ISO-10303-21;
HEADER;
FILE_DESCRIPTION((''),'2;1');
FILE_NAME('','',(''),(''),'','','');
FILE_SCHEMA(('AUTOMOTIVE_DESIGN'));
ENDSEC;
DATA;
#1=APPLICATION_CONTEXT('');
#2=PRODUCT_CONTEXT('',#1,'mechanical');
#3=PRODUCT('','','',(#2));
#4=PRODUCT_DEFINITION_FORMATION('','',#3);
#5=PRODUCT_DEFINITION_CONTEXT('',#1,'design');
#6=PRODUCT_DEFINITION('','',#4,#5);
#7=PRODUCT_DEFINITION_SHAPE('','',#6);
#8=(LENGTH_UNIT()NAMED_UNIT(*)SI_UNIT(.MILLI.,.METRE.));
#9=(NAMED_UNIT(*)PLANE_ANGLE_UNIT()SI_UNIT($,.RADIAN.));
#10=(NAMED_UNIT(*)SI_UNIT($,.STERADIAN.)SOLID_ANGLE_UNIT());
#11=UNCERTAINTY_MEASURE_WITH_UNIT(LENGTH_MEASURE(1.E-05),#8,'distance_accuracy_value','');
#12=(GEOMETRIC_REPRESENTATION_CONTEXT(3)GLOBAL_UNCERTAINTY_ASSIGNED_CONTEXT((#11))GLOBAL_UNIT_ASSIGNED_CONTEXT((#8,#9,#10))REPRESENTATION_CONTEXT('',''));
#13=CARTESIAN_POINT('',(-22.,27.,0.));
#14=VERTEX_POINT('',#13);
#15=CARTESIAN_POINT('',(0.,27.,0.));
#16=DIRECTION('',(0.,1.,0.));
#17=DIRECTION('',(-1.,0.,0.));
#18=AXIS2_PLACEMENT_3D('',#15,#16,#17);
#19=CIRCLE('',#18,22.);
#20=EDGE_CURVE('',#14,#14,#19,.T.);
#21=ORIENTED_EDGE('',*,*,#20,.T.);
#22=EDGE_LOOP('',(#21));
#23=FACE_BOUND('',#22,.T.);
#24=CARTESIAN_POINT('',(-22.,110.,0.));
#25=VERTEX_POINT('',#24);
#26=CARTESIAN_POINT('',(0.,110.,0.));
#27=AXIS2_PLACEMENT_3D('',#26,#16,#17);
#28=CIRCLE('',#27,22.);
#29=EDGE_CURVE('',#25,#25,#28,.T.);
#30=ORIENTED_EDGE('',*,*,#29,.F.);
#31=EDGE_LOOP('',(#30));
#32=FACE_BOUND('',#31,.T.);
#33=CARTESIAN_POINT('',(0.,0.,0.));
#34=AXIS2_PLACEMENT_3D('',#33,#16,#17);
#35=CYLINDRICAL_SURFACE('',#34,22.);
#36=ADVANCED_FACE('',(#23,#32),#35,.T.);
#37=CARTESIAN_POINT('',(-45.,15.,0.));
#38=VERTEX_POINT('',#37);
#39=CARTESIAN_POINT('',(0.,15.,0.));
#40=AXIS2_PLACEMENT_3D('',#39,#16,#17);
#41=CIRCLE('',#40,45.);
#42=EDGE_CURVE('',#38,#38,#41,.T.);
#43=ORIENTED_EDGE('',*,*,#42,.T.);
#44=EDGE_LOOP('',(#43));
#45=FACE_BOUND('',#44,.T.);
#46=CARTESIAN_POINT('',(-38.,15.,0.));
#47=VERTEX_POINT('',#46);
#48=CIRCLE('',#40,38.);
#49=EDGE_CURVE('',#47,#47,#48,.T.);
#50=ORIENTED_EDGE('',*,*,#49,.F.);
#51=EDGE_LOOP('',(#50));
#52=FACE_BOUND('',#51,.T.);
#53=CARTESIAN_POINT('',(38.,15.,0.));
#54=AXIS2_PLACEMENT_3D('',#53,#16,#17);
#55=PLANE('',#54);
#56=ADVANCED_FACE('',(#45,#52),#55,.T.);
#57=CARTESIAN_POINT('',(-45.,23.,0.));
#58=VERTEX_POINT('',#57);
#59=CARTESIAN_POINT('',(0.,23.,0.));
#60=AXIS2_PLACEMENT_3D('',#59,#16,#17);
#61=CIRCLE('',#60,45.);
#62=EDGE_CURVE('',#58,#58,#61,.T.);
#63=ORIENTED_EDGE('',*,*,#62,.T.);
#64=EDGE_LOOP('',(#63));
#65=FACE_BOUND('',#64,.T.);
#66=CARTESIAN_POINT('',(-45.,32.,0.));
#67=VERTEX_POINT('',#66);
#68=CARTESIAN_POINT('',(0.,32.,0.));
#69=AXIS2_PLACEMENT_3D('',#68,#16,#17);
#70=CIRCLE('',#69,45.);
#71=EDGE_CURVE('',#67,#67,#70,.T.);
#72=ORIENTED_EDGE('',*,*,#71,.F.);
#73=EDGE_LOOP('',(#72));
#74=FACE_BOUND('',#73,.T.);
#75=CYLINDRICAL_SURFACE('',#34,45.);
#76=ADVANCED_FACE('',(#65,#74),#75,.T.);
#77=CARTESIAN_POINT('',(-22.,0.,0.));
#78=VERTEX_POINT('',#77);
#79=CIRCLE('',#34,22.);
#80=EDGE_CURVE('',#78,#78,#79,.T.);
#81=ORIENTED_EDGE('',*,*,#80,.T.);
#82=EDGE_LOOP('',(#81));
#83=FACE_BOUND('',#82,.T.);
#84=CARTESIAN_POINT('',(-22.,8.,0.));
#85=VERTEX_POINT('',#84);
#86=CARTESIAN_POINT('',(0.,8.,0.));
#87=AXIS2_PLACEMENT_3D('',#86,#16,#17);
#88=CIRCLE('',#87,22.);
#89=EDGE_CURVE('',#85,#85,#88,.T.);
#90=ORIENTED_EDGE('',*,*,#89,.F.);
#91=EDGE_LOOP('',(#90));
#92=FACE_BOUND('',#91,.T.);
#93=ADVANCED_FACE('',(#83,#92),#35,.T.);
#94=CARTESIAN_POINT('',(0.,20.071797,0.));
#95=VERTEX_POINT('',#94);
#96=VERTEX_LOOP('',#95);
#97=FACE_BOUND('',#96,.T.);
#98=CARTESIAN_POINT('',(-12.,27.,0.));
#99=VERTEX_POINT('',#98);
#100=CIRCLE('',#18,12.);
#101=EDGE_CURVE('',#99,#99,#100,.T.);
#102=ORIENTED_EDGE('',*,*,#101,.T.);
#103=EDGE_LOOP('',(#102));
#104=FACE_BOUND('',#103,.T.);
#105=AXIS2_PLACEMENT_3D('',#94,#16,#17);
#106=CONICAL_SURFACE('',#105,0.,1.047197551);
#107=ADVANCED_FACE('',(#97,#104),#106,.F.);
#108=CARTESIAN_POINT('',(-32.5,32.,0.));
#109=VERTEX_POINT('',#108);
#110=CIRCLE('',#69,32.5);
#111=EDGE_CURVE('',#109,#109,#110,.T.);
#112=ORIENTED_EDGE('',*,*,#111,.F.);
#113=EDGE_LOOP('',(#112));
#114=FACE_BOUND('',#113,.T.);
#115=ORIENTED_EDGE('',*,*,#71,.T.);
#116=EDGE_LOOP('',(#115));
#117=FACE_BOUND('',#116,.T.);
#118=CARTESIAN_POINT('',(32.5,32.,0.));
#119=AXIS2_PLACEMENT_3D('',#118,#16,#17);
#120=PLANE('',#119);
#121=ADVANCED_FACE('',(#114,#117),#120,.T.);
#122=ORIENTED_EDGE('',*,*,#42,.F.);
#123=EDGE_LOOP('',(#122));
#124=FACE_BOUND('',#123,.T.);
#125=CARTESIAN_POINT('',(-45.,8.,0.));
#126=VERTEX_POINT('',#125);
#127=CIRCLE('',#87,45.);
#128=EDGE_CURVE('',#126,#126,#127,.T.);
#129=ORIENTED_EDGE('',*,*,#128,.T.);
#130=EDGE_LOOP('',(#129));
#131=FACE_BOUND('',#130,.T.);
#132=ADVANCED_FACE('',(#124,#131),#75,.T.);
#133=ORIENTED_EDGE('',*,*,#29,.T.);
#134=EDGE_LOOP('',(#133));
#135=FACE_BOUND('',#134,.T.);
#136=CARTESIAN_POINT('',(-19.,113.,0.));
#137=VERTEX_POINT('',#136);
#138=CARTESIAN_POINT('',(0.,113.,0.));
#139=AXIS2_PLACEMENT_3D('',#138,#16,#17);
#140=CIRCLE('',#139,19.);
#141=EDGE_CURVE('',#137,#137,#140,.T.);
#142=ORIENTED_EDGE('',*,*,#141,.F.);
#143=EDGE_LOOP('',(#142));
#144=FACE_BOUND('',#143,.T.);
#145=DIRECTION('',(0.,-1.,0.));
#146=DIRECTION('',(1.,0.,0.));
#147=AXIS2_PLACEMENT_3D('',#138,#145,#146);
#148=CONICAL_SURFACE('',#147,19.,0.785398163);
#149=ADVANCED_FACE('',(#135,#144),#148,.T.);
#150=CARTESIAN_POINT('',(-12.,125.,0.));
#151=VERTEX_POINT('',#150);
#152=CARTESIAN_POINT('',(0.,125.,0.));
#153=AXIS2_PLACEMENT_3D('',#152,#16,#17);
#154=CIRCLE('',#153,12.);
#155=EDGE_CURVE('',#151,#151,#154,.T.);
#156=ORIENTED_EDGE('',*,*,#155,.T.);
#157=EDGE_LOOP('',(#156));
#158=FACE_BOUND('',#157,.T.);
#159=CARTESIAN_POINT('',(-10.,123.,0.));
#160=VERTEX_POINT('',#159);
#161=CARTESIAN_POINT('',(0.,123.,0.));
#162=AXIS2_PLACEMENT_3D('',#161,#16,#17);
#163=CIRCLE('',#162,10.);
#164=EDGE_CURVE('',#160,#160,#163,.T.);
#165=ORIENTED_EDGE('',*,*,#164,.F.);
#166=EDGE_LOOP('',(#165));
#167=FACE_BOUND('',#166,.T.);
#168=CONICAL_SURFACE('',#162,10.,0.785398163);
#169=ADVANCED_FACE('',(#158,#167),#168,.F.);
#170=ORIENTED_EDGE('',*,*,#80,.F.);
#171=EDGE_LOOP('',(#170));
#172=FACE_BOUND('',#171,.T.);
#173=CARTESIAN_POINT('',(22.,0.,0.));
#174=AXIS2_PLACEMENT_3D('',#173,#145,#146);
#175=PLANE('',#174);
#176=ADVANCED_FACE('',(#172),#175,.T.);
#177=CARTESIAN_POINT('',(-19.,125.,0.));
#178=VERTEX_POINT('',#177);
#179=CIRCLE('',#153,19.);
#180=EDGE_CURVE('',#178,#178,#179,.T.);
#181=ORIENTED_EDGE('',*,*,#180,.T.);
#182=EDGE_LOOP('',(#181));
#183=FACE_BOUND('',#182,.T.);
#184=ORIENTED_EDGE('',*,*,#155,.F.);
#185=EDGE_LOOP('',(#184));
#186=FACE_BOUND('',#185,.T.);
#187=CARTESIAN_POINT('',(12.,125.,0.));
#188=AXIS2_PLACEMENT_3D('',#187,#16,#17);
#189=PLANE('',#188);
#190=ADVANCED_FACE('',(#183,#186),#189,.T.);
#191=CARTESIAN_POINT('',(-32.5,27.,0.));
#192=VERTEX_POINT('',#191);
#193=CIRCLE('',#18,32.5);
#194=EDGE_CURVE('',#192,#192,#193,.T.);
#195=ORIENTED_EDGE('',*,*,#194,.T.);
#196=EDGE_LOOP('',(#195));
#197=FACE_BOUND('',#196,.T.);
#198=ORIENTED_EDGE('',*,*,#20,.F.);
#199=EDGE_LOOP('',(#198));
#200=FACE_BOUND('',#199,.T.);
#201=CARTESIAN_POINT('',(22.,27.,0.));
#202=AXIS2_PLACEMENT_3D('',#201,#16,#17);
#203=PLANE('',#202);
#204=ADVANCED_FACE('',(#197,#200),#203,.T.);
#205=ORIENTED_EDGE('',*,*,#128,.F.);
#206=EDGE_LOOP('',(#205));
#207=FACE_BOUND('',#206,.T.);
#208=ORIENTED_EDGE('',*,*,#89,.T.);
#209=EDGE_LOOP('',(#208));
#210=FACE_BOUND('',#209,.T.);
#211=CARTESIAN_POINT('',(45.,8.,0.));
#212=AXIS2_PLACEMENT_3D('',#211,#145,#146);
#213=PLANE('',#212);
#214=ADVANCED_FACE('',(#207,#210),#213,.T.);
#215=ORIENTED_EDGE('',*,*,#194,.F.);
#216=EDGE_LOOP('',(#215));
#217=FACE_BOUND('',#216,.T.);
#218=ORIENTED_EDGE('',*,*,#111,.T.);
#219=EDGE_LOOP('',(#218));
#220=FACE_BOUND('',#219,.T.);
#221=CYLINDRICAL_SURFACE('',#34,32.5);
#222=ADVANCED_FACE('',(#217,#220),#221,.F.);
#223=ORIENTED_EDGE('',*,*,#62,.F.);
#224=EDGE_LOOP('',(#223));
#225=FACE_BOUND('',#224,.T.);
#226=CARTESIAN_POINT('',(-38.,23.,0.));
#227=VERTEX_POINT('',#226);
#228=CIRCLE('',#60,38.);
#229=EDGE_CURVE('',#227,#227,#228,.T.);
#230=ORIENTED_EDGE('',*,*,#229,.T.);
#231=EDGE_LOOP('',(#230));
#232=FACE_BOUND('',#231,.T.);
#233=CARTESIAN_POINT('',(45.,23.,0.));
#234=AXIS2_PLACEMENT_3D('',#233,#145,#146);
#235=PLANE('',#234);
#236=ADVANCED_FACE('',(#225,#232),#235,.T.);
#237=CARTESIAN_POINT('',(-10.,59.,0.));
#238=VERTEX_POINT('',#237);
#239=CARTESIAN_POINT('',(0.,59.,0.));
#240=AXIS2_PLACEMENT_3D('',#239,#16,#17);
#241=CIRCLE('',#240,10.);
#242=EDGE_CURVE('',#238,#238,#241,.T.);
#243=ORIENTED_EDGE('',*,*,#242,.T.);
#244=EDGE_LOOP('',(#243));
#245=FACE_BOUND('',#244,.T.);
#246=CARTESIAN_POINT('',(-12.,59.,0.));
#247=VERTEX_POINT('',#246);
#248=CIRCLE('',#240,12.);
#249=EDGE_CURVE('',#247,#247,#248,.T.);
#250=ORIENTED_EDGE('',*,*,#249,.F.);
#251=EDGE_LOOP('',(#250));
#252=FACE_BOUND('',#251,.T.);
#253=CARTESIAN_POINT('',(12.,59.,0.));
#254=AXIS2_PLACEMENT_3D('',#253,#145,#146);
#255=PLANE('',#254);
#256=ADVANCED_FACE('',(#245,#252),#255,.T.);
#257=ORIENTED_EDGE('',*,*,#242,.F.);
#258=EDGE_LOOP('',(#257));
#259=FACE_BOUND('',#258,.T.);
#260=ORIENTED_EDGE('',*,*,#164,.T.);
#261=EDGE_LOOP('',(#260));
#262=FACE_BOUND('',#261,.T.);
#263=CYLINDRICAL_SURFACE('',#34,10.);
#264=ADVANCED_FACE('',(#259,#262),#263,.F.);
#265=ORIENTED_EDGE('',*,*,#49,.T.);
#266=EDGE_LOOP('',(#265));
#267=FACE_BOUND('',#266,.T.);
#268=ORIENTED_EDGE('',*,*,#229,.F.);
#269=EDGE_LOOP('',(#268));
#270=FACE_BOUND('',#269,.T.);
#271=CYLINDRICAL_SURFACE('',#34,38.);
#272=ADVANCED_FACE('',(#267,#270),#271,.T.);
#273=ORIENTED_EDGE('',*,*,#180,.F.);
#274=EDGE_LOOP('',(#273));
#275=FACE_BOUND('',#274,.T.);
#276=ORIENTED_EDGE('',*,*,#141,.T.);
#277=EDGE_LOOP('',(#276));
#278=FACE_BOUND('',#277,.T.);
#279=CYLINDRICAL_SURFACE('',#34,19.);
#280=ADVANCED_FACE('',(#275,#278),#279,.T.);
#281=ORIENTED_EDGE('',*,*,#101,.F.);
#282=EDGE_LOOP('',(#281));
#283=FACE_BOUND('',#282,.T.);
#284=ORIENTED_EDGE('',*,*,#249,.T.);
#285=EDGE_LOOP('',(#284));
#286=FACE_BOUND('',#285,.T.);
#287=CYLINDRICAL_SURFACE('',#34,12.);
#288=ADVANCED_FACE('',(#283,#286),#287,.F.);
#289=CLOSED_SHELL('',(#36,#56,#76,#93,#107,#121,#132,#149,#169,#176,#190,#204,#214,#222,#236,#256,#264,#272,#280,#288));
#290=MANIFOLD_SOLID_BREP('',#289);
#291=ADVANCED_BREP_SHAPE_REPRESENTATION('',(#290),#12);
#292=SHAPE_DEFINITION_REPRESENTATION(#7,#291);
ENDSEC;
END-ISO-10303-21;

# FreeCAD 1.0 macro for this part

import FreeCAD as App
import Part
import Sketcher
from FreeCAD import Vector
Q = App.Units.Quantity

doc = App.newDocument("Part")
body = doc.addObject("PartDesign::Body", "Body")

# Sketch on XY plane
sketch1 = body.newObject("Sketcher::SketchObject", "Sketch")
sketch1.AttachmentSupport = (doc.getObject("XY_Plane"), [""])
sketch1.MapMode = "FlatFace"
sketch1.addGeometry([
    Part.LineSegment(Vector(22, 0, 0), Vector(0, 0, 0)),  # 0
    Part.LineSegment(Vector(0, 0, 0), Vector(0, 20.1, 0)),  # 1
    Part.LineSegment(Vector(0, 20.1, 0), Vector(12, 27, 0)),  # 2
    Part.LineSegment(Vector(12, 27, 0), Vector(12, 59, 0)),  # 3
    Part.LineSegment(Vector(12, 59, 0), Vector(10, 59, 0)),  # 4
    Part.LineSegment(Vector(10, 59, 0), Vector(10, 123, 0)),  # 5
    Part.LineSegment(Vector(10, 123, 0), Vector(12, 125, 0)),  # 6
    Part.LineSegment(Vector(12, 125, 0), Vector(19, 125, 0)),  # 7
    Part.LineSegment(Vector(19, 125, 0), Vector(19, 113, 0)),  # 8
    Part.LineSegment(Vector(19, 113, 0), Vector(22, 110, 0)),  # 9
    Part.LineSegment(Vector(22, 110, 0), Vector(22, 27, 0)),  # 10
    Part.LineSegment(Vector(22, 27, 0), Vector(32.5, 27, 0)),  # 11
    Part.LineSegment(Vector(32.5, 27, 0), Vector(32.5, 32, 0)),  # 12
    Part.LineSegment(Vector(32.5, 32, 0), Vector(45, 32, 0)),  # 13
    Part.LineSegment(Vector(45, 32, 0), Vector(45, 23, 0)),  # 14
    Part.LineSegment(Vector(45, 23, 0), Vector(38, 23, 0)),  # 15
    Part.LineSegment(Vector(38, 23, 0), Vector(38, 15, 0)),  # 16
    Part.LineSegment(Vector(38, 15, 0), Vector(45, 15, 0)),  # 17
    Part.LineSegment(Vector(45, 15, 0), Vector(45, 8, 0)),  # 18
    Part.LineSegment(Vector(45, 8, 0), Vector(22, 8, 0)),  # 19
    Part.LineSegment(Vector(22, 8, 0), Vector(22, 0, 0)),  # 20
], False)
sketch1.addConstraint([
    Sketcher.Constraint("Coincident", 0, 2, 1, 1),
    Sketcher.Constraint("Coincident", 1, 2, 2, 1),
    Sketcher.Constraint("Coincident", 2, 2, 3, 1),
    Sketcher.Constraint("Coincident", 3, 2, 4, 1),
    Sketcher.Constraint("Coincident", 4, 2, 5, 1),
    Sketcher.Constraint("Coincident", 5, 2, 6, 1),
    Sketcher.Constraint("Coincident", 6, 2, 7, 1),
    Sketcher.Constraint("Coincident", 7, 2, 8, 1),
    Sketcher.Constraint("Coincident", 8, 2, 9, 1),
    Sketcher.Constraint("Coincident", 9, 2, 10, 1),
    Sketcher.Constraint("Coincident", 10, 2, 11, 1),
    Sketcher.Constraint("Coincident", 11, 2, 12, 1),
    Sketcher.Constraint("Coincident", 12, 2, 13, 1),
    Sketcher.Constraint("Coincident", 13, 2, 14, 1),
    Sketcher.Constraint("Coincident", 14, 2, 15, 1),
    Sketcher.Constraint("Coincident", 15, 2, 16, 1),
    Sketcher.Constraint("Coincident", 16, 2, 17, 1),
    Sketcher.Constraint("Coincident", 17, 2, 18, 1),
    Sketcher.Constraint("Coincident", 18, 2, 19, 1),
    Sketcher.Constraint("Coincident", 19, 2, 20, 1),
    Sketcher.Constraint("Coincident", 20, 2, 0, 1),
    Sketcher.Constraint("Horizontal", 0),
    Sketcher.Constraint("Vertical", 1),
    Sketcher.Constraint("Vertical", 3),
    Sketcher.Constraint("Horizontal", 4),
    Sketcher.Constraint("Vertical", 5),
    Sketcher.Constraint("Horizontal", 7),
    Sketcher.Constraint("Vertical", 8),
    Sketcher.Constraint("Vertical", 10),
    Sketcher.Constraint("Horizontal", 11),
    Sketcher.Constraint("Vertical", 12),
    Sketcher.Constraint("Horizontal", 13),
    Sketcher.Constraint("Vertical", 14),
    Sketcher.Constraint("Horizontal", 15),
    Sketcher.Constraint("Vertical", 16),
    Sketcher.Constraint("Horizontal", 17),
    Sketcher.Constraint("Vertical", 18),
    Sketcher.Constraint("Horizontal", 19),
    Sketcher.Constraint("Vertical", 20),
    Sketcher.Constraint("Coincident", 0, 2, -1, 1),
    Sketcher.Constraint("Perpendicular", 6, 9),
    Sketcher.Constraint("Horizontal", 2, 2, 10, 2),
    Sketcher.Constraint("Vertical", 3, 2, 6, 2),
    Sketcher.Constraint("Vertical", 14, 2, 17, 2),
    Sketcher.Constraint("Vertical", 10, 2, 19, 2),
    Sketcher.Constraint("Equal", 7, 15),
    Sketcher.Constraint("Equal", 17, 18),
    Sketcher.Constraint("Equal", 16, 20),
    Sketcher.Constraint("DistanceX", 0, 2, 0, 1, Q("22 mm")),
    Sketcher.Constraint("DistanceX", 4, 2, 4, 1, Q("2 mm")),
    Sketcher.Constraint("DistanceX", 7, 1, 7, 2, Q("7 mm")),
    Sketcher.Constraint("DistanceX", 19, 2, 19, 1, Q("23 mm")),
    Sketcher.Constraint("DistanceY", 3, 1, 3, 2, Q("32 mm")),
    Sketcher.Constraint("DistanceY", 5, 1, 5, 2, Q("64 mm")),
    Sketcher.Constraint("DistanceY", 8, 2, 8, 1, Q("12 mm")),
    Sketcher.Constraint("DistanceY", 10, 2, 10, 1, Q("83 mm")),
    Sketcher.Constraint("DistanceY", 12, 1, 12, 2, Q("5 mm")),
    Sketcher.Constraint("DistanceY", 14, 2, 14, 1, Q("9 mm")),
    Sketcher.Constraint("DistanceY", 16, 2, 16, 1, Q("8 mm")),
    Sketcher.Constraint("Angle", 2, Q("30 deg")),
    Sketcher.Constraint("Angle", 6, Q("45 deg")),
    Sketcher.Constraint("DistanceX", 11, 1, 11, 2, Q("10.5 mm")),
])
revolution = body.newObject("PartDesign::Revolution", "Revolution")
revolution.Profile = sketch1
revolution.ReferenceAxis = (sketch1, ["V_Axis"])
revolution.Angle = 360

doc.recompute()
